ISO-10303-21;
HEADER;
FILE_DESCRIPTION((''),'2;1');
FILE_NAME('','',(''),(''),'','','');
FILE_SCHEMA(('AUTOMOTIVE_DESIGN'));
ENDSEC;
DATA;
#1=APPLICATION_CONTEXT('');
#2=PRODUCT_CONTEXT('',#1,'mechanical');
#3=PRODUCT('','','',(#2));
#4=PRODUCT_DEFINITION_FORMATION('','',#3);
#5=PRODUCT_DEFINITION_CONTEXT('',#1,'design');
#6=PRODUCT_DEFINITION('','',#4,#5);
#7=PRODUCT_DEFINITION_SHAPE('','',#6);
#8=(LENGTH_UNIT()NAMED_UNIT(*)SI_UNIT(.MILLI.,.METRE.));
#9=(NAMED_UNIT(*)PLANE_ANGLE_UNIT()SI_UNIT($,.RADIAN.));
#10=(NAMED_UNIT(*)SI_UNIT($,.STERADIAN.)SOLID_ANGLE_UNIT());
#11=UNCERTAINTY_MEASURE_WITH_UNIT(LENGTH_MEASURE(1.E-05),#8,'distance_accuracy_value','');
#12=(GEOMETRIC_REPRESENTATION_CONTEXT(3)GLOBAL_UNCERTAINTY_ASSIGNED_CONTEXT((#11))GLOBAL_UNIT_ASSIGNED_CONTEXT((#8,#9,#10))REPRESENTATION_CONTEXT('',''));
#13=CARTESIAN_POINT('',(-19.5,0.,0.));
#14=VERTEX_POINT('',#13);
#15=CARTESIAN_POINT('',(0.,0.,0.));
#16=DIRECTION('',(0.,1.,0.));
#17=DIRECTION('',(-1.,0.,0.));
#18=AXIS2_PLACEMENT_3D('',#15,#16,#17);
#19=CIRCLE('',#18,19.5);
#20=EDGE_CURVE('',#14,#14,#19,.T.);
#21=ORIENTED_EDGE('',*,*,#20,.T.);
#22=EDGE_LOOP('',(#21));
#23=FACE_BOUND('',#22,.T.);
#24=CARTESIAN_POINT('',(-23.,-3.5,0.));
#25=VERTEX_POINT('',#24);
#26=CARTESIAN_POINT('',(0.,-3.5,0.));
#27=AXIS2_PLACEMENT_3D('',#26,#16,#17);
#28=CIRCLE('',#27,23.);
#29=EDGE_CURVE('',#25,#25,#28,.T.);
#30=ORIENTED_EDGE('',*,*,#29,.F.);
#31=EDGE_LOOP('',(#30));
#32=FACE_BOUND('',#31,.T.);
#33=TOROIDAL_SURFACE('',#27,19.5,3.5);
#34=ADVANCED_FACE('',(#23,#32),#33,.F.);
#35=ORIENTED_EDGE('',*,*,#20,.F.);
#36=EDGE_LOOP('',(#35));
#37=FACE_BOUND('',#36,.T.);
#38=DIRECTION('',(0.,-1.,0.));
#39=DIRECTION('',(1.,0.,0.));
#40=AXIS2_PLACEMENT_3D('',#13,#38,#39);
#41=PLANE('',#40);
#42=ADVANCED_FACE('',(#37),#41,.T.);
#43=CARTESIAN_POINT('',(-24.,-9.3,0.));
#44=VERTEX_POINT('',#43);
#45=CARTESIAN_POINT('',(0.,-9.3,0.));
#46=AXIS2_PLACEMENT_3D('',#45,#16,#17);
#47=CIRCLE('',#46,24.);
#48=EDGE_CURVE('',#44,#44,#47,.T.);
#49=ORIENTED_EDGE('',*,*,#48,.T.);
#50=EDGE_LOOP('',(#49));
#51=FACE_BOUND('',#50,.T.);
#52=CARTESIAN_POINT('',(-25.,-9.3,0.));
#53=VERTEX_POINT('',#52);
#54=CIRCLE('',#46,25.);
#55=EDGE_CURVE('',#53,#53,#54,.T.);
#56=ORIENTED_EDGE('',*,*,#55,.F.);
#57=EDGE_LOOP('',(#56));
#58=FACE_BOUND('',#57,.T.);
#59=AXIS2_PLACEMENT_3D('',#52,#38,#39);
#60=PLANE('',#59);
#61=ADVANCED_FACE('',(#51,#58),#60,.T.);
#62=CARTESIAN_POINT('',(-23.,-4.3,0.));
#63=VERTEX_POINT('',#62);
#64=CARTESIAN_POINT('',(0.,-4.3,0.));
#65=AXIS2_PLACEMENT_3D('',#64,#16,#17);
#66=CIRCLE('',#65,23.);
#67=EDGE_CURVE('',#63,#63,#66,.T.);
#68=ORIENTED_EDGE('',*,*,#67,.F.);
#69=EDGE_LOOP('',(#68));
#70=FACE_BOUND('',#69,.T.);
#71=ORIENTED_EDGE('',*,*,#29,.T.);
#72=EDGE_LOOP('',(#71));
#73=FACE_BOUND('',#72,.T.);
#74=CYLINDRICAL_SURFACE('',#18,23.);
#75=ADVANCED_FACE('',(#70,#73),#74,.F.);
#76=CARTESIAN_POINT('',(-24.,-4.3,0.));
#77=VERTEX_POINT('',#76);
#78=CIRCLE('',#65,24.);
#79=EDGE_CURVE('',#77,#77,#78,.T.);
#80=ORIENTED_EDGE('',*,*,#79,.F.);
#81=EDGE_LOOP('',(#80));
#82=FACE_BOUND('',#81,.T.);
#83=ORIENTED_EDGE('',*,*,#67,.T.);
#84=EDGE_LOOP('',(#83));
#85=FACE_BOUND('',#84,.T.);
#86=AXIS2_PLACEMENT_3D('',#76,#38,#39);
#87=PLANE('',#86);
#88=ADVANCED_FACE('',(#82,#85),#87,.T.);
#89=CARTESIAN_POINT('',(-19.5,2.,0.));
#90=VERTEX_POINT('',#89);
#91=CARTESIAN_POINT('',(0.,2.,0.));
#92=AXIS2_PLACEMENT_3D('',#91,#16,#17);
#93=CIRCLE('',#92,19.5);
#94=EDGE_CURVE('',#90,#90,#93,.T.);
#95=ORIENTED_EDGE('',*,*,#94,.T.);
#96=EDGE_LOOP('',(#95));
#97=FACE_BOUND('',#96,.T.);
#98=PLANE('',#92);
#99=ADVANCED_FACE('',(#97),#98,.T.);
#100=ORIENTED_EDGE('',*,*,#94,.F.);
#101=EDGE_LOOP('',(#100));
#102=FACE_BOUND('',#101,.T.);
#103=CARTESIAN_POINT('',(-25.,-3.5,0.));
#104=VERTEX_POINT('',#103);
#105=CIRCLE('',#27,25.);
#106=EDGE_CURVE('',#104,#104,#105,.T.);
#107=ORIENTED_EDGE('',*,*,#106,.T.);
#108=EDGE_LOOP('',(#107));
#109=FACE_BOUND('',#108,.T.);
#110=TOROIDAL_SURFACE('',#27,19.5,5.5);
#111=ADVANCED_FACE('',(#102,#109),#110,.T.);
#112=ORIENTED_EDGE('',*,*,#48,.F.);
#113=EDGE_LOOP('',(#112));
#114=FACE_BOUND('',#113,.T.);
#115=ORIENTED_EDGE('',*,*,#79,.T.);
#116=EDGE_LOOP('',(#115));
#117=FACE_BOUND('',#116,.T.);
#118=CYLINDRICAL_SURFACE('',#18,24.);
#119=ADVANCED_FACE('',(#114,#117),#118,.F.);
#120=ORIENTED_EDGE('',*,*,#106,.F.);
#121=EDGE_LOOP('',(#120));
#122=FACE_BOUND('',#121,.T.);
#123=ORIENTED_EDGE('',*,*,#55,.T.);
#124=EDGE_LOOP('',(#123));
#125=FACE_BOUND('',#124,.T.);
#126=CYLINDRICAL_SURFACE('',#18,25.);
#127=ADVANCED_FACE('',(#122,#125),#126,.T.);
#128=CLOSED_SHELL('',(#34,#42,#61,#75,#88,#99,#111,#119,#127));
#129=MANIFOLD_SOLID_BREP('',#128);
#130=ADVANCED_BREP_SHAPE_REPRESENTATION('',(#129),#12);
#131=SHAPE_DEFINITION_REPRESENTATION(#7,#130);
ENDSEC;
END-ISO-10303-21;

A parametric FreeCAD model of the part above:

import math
import FreeCAD as App
import Part
import Sketcher
Q = App.Units.Quantity

doc = App.newDocument("Part")
body = doc.addObject("PartDesign::Body", "Body")

# Sketch on XY plane
sketch1 = doc.addObject("Sketcher::SketchObject", "Sketch")
body.addObject(sketch1)
sketch1.AttachmentSupport = (doc.XY_Plane, [""])
sketch1.MapMode = "FlatFace"
sketch1.addGeometry([
    Part.LineSegment(App.Vector(0, 0, 0), App.Vector(0, 2, 0)),  # 0
    Part.LineSegment(App.Vector(0, 2, 0), App.Vector(-19.5, 2, 0)),  # 1
    Part.ArcOfCircle(Part.Circle(App.Vector(-19.5, -3.5, 0), App.Vector(0, 0, 1), 5.5), math.radians(90), math.radians(180)),  # 2
    Part.LineSegment(App.Vector(-25, -3.5, 0), App.Vector(-25, -9.3, 0)),  # 3
    Part.LineSegment(App.Vector(-25, -9.3, 0), App.Vector(-24, -9.3, 0)),  # 4
    Part.LineSegment(App.Vector(-24, -9.3, 0), App.Vector(-24, -4.3, 0)),  # 5
    Part.LineSegment(App.Vector(-24, -4.3, 0), App.Vector(-23, -4.3, 0)),  # 6
    Part.LineSegment(App.Vector(-23, -4.3, 0), App.Vector(-23, -3.5, 0)),  # 7
    Part.ArcOfCircle(Part.Circle(App.Vector(-19.5, -3.5, 0), App.Vector(0, 0, 1), 3.5), math.radians(90), math.radians(180)),  # 8
    Part.LineSegment(App.Vector(-19.5, 0, 0), App.Vector(0, 0, 0)),  # 9
], False)
sketch1.addConstraint([
    Sketcher.Constraint("Coincident", 0, 2, 1, 1),
    Sketcher.Constraint("Tangent", 1, 2, 2, 1),
    Sketcher.Constraint("Tangent", 2, 2, 3, 1),
    Sketcher.Constraint("Coincident", 3, 2, 4, 1),
    Sketcher.Constraint("Coincident", 4, 2, 5, 1),
    Sketcher.Constraint("Coincident", 5, 2, 6, 1),
    Sketcher.Constraint("Coincident", 6, 2, 7, 1),
    Sketcher.Constraint("Tangent", 7, 2, 8, 2),
    Sketcher.Constraint("Tangent", 8, 1, 9, 1),
    Sketcher.Constraint("Coincident", 9, 2, 0, 1),
    Sketcher.Constraint("Vertical", 0),
    Sketcher.Constraint("Horizontal", 1),
    Sketcher.Constraint("Vertical", 3),
    Sketcher.Constraint("Horizontal", 4),
    Sketcher.Constraint("Vertical", 5),
    Sketcher.Constraint("Horizontal", 6),
    Sketcher.Constraint("Vertical", 7),
    Sketcher.Constraint("Horizontal", 9),
    Sketcher.Constraint("Coincident", 9, 2, -1, 1),
    Sketcher.Constraint("Coincident", 8, 3, 2, 3),
    Sketcher.Constraint("Equal", 4, 6),
    Sketcher.Constraint("Radius", 2, Q("5.5 mm")),
    Sketcher.Constraint("Radius", 8, Q("3.5 mm")),
    Sketcher.Constraint("DistanceY", 5, 1, 5, 2, Q("5 mm")),
    Sketcher.Constraint("DistanceX", 1, 2, 1, 1, Q("19.5 mm")),
    Sketcher.Constraint("DistanceY", 3, 2, 3, 1, Q("5.8 mm")),
])
revolution = doc.addObject("PartDesign::Revolution", "Revolution")
body.addObject(revolution)
revolution.Profile = sketch1
revolution.ReferenceAxis = (sketch1, ["V_Axis"])
revolution.Angle = 360

doc.recompute()
